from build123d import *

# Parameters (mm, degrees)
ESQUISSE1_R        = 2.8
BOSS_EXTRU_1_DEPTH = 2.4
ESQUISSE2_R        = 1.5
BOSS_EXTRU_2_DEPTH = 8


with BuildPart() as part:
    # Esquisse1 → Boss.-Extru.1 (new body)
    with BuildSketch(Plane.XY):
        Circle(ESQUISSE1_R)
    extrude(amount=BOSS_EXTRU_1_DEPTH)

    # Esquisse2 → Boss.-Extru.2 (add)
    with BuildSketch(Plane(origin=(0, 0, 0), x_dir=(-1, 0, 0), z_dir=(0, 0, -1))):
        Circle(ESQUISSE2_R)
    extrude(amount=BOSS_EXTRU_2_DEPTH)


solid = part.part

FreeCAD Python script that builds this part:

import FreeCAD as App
import Part
import Sketcher
from FreeCAD import Vector
Q = App.Units.Quantity

doc = App.newDocument("Part")
body = doc.addObject("PartDesign::Body", "Body")

sketch1 = doc.addObject("Sketcher::SketchObject", "Sketch")
body.addObject(sketch1)
sketch1.AttachmentSupport = (doc.XY_Plane, [""])
sketch1.MapMode = "FlatFace"
sketch1.addGeometry(Part.Circle(Vector(0, 0, 0), Vector(0, 0, 1), 2.8), False)
sketch1.addConstraint([
    Sketcher.Constraint("Coincident", 0, 3, -1, 1),
    Sketcher.Constraint("Diameter", 0, Q("5.6 mm")),
])
pad1 = doc.addObject("PartDesign::Pad", "Pad")
body.addObject(pad1)
pad1.Profile = sketch1
pad1.Length = 2.4

sketch2 = doc.addObject("Sketcher::SketchObject", "Sketch001")
body.addObject(sketch2)
sketch2.AttachmentSupport = (doc.XY_Plane, [""])
sketch2.MapMode = "FlatFace"
sketch2.addGeometry(Part.Circle(Vector(0, 0, 0), Vector(0, 0, 1), 1.5), False)
sketch2.addConstraint([
    Sketcher.Constraint("Coincident", 0, 3, -1, 1),
    Sketcher.Constraint("Diameter", 0, Q("3 mm")),
])
pad2 = doc.addObject("PartDesign::Pad", "Pad001")
body.addObject(pad2)
pad2.Profile = sketch2
pad2.Length = 8
pad2.Reversed = True

doc.recompute()
